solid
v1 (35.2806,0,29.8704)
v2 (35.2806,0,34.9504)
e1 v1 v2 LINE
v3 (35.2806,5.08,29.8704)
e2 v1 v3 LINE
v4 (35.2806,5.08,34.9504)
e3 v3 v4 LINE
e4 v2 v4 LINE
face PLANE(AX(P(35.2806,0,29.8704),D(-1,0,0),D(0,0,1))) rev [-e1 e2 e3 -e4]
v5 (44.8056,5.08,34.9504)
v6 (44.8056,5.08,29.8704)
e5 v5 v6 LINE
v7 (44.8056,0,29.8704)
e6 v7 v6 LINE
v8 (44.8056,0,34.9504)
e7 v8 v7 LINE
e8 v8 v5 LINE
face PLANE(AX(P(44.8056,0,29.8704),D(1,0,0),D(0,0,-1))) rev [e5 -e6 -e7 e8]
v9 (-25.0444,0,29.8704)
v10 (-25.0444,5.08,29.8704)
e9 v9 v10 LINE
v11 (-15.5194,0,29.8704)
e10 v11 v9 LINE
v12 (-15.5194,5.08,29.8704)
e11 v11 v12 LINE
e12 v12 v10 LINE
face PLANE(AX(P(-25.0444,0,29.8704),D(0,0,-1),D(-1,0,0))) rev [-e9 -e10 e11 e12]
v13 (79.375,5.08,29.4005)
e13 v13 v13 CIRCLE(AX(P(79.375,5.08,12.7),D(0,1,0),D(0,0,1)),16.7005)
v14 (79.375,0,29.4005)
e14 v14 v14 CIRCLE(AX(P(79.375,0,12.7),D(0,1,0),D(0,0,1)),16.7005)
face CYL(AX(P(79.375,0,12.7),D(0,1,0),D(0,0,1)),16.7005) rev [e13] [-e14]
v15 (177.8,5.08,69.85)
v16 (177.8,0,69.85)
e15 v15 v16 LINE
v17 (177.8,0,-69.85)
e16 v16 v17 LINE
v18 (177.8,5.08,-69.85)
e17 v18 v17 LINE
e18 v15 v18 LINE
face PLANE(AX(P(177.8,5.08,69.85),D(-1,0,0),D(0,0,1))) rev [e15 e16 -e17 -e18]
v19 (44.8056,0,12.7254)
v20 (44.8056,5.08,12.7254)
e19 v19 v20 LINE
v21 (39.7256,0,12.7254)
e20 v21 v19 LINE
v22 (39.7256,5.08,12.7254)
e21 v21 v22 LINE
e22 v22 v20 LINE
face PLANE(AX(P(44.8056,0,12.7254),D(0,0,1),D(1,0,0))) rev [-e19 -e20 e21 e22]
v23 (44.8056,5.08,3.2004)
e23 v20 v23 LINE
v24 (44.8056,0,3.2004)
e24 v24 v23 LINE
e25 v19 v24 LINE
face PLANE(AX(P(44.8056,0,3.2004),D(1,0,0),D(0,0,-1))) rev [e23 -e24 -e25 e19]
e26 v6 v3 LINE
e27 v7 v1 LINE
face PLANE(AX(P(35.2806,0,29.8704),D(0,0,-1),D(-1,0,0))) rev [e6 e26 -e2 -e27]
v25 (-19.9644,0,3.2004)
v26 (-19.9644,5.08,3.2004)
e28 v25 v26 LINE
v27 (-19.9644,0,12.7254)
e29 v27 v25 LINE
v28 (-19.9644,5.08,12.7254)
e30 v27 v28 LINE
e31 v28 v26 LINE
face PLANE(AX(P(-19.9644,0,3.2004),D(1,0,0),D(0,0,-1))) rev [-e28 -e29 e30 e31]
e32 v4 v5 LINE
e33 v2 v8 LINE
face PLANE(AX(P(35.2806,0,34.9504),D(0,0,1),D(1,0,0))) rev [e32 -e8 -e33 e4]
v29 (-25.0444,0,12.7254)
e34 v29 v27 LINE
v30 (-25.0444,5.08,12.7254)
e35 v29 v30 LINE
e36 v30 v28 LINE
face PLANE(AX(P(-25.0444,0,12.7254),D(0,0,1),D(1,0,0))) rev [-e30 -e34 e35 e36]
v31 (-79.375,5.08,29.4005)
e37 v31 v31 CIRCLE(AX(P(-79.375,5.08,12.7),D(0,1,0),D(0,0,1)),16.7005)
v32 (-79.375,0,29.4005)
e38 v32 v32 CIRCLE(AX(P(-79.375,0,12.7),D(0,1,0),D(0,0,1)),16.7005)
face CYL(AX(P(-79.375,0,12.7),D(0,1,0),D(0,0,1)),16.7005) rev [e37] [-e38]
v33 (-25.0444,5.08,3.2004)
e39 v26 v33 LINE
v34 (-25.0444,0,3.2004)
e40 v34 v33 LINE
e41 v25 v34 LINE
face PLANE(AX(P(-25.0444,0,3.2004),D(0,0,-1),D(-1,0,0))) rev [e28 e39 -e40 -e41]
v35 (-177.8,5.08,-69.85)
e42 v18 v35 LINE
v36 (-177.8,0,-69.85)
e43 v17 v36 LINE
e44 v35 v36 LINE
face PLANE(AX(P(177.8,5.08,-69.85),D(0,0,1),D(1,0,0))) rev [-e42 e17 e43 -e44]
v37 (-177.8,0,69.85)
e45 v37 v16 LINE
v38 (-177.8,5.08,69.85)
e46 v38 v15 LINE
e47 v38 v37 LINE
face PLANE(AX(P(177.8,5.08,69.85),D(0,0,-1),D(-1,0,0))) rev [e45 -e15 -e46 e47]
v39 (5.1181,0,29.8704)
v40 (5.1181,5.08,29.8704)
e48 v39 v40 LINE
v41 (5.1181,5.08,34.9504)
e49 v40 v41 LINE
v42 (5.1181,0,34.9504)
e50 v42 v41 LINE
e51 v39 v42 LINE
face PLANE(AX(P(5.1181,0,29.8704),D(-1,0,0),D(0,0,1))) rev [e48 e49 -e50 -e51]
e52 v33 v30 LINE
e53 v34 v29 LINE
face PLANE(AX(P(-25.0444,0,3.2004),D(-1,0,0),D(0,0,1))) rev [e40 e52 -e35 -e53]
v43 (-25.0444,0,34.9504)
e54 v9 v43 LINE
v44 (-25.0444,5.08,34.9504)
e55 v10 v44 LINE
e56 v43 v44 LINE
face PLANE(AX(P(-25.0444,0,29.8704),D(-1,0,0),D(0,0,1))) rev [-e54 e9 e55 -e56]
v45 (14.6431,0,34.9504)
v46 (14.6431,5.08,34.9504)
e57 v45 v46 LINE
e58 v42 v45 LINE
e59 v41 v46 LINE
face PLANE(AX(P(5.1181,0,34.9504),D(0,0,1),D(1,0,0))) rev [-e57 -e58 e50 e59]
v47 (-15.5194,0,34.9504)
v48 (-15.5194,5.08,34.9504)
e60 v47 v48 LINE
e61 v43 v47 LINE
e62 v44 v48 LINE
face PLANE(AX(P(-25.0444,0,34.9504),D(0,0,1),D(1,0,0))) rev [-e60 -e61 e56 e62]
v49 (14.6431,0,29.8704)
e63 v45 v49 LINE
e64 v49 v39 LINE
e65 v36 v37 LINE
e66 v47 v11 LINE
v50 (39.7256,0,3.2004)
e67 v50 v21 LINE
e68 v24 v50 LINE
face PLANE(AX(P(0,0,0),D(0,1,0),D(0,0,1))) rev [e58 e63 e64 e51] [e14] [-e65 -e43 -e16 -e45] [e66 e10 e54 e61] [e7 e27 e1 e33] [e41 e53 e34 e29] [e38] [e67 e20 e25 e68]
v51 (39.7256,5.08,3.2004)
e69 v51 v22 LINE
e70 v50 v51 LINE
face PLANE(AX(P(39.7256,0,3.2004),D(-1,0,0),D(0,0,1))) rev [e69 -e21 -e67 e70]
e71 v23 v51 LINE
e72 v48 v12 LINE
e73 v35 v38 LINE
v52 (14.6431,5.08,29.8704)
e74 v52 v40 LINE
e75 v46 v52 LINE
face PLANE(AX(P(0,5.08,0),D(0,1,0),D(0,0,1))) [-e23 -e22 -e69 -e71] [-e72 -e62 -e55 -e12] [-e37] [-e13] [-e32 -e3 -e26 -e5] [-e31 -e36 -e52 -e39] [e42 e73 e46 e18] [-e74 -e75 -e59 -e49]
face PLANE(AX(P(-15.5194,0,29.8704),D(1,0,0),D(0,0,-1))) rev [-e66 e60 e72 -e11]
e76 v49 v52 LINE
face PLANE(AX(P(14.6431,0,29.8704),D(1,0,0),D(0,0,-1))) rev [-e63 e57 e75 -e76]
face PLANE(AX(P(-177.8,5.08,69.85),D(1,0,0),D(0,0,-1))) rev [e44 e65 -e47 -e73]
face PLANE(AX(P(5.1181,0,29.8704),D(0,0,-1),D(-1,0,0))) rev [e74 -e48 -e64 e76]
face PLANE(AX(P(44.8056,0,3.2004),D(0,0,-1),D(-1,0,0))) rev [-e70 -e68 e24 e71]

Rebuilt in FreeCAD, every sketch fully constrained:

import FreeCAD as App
import Part
import Sketcher
from FreeCAD import Vector
Q = App.Units.Quantity

doc = App.newDocument("Part")
body = doc.addObject("PartDesign::Body", "Body")

# Sketch on XZ plane
sketch1 = doc.addObject("Sketcher::SketchObject", "Sketch")
body.addObject(sketch1)
sketch1.AttachmentSupport = (doc.XZ_Plane, [""])
sketch1.MapMode = "FlatFace"
sketch1.addGeometry([
    Part.LineSegment(Vector(-178, -70, 0), Vector(-178, 70, 0)),
    Part.LineSegment(Vector(-178, 70, 0), Vector(178, 70, 0)),
    Part.LineSegment(Vector(178, 70, 0), Vector(178, -70, 0)),
    Part.LineSegment(Vector(178, -70, 0), Vector(-178, -70, 0)),
], False)
sketch1.addConstraint([
    Sketcher.Constraint("Coincident", 0, 2, 1, 1),
    Sketcher.Constraint("Coincident", 1, 2, 2, 1),
    Sketcher.Constraint("Coincident", 2, 2, 3, 1),
    Sketcher.Constraint("Coincident", 3, 2, 0, 1),
    Sketcher.Constraint("Vertical", 0),
    Sketcher.Constraint("Horizontal", 1),
    Sketcher.Constraint("Vertical", 2),
    Sketcher.Constraint("Horizontal", 3),
    Sketcher.Constraint("Symmetric", 0, 2, 2, 2, -1, 1),
    Sketcher.Constraint("DistanceX", 1, 1, 1, 2, Q("14 in")),
    Sketcher.Constraint("DistanceY", 0, 1, 0, 2, Q("5.5 in")),
])
pad1 = doc.addObject("PartDesign::Pad", "Pad")
body.addObject(pad1)
pad1.Profile = sketch1
pad1.Length = Q("0.2 in")
pad1.Reversed = True

# Sketch on XZ plane
sketch2 = doc.addObject("Sketcher::SketchObject", "Sketch001")
body.addObject(sketch2)
sketch2.AttachmentSupport = (doc.XZ_Plane, [""])
sketch2.MapMode = "FlatFace"
sketch2.AttachmentOffset = App.Placement(Vector(0, 0, -0.2 * 25.4), App.Rotation())
sketch2.addGeometry([
    Part.Circle(Vector(-79, 13, 0), Vector(0, 0, 1), 17),
    Part.Circle(Vector(79, 13, 0), Vector(0, 0, 1), 17),
], False)
sketch2.addConstraint([
    Sketcher.Constraint("Equal", 0, 1),
    Sketcher.Constraint("Symmetric", 0, 3, 1, 3, -2),
    Sketcher.Constraint("Diameter", 0, Q("1.315 in")),
    Sketcher.Constraint("DistanceY", -1, 1, 0, 3, Q("0.5 in")),
    Sketcher.Constraint("DistanceX", 0, 3, 1, 3, Q("6.25 in")),
])
pocket1 = doc.addObject("PartDesign::Pocket", "Pocket")
body.addObject(pocket1)
pocket1.Profile = sketch2
pocket1.Type = "ThroughAll"
pocket1.Reversed = True

# Sketch on XZ plane
sketch3 = doc.addObject("Sketcher::SketchObject", "Sketch002")
body.addObject(sketch3)
sketch3.AttachmentSupport = (doc.XZ_Plane, [""])
sketch3.MapMode = "FlatFace"
sketch3.AttachmentOffset = App.Placement(Vector(0, 0, -0.2 * 25.4), App.Rotation())
sketch3.addGeometry([
    Part.LineSegment(Vector(-25, 3, 0), Vector(-25, 13, 0)),  # 0
    Part.LineSegment(Vector(-25, 13, 0), Vector(-20, 13, 0)),  # 1
    Part.LineSegment(Vector(-20, 13, 0), Vector(-20, 3, 0)),  # 2
    Part.LineSegment(Vector(-20, 3, 0), Vector(-25, 3, 0)),  # 3
    Part.LineSegment(Vector(-25, 30, 0), Vector(-25, 35, 0)),  # 4
    Part.LineSegment(Vector(-25, 35, 0), Vector(-16, 35, 0)),  # 5
    Part.LineSegment(Vector(-16, 35, 0), Vector(-16, 30, 0)),  # 6
    Part.LineSegment(Vector(-16, 30, 0), Vector(-25, 30, 0)),  # 7
    Part.LineSegment(Vector(5, 30, 0), Vector(5, 35, 0)),  # 8
    Part.LineSegment(Vector(5, 35, 0), Vector(15, 35, 0)),  # 9
    Part.LineSegment(Vector(15, 35, 0), Vector(15, 30, 0)),  # 10
    Part.LineSegment(Vector(15, 30, 0), Vector(5, 30, 0)),  # 11
    Part.LineSegment(Vector(35, 30, 0), Vector(35, 35, 0)),  # 12
    Part.LineSegment(Vector(35, 35, 0), Vector(45, 35, 0)),  # 13
    Part.LineSegment(Vector(45, 35, 0), Vector(45, 30, 0)),  # 14
    Part.LineSegment(Vector(45, 30, 0), Vector(35, 30, 0)),  # 15
    Part.LineSegment(Vector(40, 3, 0), Vector(40, 13, 0)),  # 16
    Part.LineSegment(Vector(40, 13, 0), Vector(45, 13, 0)),  # 17
    Part.LineSegment(Vector(45, 13, 0), Vector(45, 3, 0)),  # 18
    Part.LineSegment(Vector(45, 3, 0), Vector(40, 3, 0)),  # 19
], False)
sketch3.addConstraint([
    Sketcher.Constraint("Coincident", 0, 2, 1, 1),
    Sketcher.Constraint("Coincident", 1, 2, 2, 1),
    Sketcher.Constraint("Coincident", 2, 2, 3, 1),
    Sketcher.Constraint("Coincident", 3, 2, 0, 1),
    Sketcher.Constraint("Coincident", 4, 2, 5, 1),
    Sketcher.Constraint("Coincident", 5, 2, 6, 1),
    Sketcher.Constraint("Coincident", 6, 2, 7, 1),
    Sketcher.Constraint("Coincident", 7, 2, 4, 1),
    Sketcher.Constraint("Coincident", 8, 2, 9, 1),
    Sketcher.Constraint("Coincident", 9, 2, 10, 1),
    Sketcher.Constraint("Coincident", 10, 2, 11, 1),
    Sketcher.Constraint("Coincident", 11, 2, 8, 1),
    Sketcher.Constraint("Coincident", 12, 2, 13, 1),
    Sketcher.Constraint("Coincident", 13, 2, 14, 1),
    Sketcher.Constraint("Coincident", 14, 2, 15, 1),
    Sketcher.Constraint("Coincident", 15, 2, 12, 1),
    Sketcher.Constraint("Coincident", 16, 2, 17, 1),
    Sketcher.Constraint("Coincident", 17, 2, 18, 1),
    Sketcher.Constraint("Coincident", 18, 2, 19, 1),
    Sketcher.Constraint("Coincident", 19, 2, 16, 1),
    Sketcher.Constraint("Vertical", 0),
    Sketcher.Constraint("Horizontal", 1),
    Sketcher.Constraint("Vertical", 2),
    Sketcher.Constraint("Horizontal", 3),
    Sketcher.Constraint("Vertical", 4),
    Sketcher.Constraint("Horizontal", 5),
    Sketcher.Constraint("Vertical", 6),
    Sketcher.Constraint("Horizontal", 7),
    Sketcher.Constraint("Vertical", 8),
    Sketcher.Constraint("Horizontal", 9),
    Sketcher.Constraint("Vertical", 10),
    Sketcher.Constraint("Horizontal", 11),
    Sketcher.Constraint("Vertical", 12),
    Sketcher.Constraint("Horizontal", 13),
    Sketcher.Constraint("Vertical", 14),
    Sketcher.Constraint("Horizontal", 15),
    Sketcher.Constraint("Vertical", 16),
    Sketcher.Constraint("Horizontal", 17),
    Sketcher.Constraint("Vertical", 18),
    Sketcher.Constraint("Horizontal", 19),
    Sketcher.Constraint("Horizontal", 5, 2, 8, 2),
    Sketcher.Constraint("Horizontal", 7, 2, 10, 2),
    Sketcher.Constraint("Horizontal", 9, 2, 12, 2),
    Sketcher.Constraint("Horizontal", 11, 2, 14, 2),
    Sketcher.Constraint("Horizontal", 1, 2, 16, 2),
    Sketcher.Constraint("Horizontal", 3, 2, 18, 2),
    Sketcher.Constraint("Vertical", 3, 2, 4, 2),
    Sketcher.Constraint("Vertical", 14, 2, 17, 2),
    Sketcher.Constraint("Equal", 7, 9),
    Sketcher.Constraint("Equal", 11, 13),
    Sketcher.Constraint("Equal", 3, 17),
    Sketcher.Constraint("Equal", 15, 0),
    Sketcher.Constraint("Equal", 19, 4),
    Sketcher.Constraint("DistanceX", 1, 1, 1, 2, Q("0.2 in")),
    Sketcher.Constraint("DistanceX", 5, 2, 12, 2, Q("2 in")),
    Sketcher.Constraint("DistanceX", 5, 1, 5, 2, Q("0.375 in")),
    Sketcher.Constraint("DistanceY", 3, 2, 4, 2, Q("1.25 in")),
    Sketcher.Constraint("DistanceX", 0, 2, -1, 1, Q("0.986 in")),
    Sketcher.Constraint("DistanceY", -1, 1, 0, 2, Q("0.501 in")),
    Sketcher.Constraint("DistanceX", 5, 2, 8, 2, Q("0.8125 in")),
])
pocket2 = doc.addObject("PartDesign::Pocket", "Pocket001")
body.addObject(pocket2)
pocket2.Profile = sketch3
pocket2.Type = "ThroughAll"
pocket2.Reversed = True

doc.recompute()
